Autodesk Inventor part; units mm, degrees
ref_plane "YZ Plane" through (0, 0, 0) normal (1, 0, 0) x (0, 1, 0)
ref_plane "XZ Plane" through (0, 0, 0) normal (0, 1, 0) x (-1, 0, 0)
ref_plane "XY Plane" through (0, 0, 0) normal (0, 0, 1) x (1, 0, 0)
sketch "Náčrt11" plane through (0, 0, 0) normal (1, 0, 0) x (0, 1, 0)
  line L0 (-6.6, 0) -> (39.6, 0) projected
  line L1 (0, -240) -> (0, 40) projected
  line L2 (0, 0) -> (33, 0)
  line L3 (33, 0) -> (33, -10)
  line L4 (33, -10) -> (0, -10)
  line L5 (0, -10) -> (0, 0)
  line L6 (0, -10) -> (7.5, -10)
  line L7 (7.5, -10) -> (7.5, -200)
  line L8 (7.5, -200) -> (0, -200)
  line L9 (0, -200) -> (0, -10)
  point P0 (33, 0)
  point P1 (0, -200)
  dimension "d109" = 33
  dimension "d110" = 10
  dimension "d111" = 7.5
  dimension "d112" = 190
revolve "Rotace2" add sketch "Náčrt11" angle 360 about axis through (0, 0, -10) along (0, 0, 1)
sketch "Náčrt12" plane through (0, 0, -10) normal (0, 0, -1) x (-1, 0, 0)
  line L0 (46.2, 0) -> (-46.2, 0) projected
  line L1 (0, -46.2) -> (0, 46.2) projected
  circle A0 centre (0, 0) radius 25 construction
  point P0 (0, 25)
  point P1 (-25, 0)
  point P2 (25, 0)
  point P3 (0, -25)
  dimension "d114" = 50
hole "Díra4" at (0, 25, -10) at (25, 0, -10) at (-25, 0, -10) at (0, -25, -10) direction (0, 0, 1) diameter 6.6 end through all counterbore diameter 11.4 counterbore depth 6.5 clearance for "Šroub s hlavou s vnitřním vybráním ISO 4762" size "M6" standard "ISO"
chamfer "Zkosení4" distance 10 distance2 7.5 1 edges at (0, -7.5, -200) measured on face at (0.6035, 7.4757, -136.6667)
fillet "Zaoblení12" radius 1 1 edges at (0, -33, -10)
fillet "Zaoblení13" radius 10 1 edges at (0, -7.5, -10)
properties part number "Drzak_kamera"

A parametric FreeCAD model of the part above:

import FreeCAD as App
import Part
import Sketcher
from FreeCAD import Vector


def edges_at(feature, points):
    """Names of the edges that pass closest to the given points."""
    edges = feature.Shape.Edges
    near = lambda p: min(range(len(edges)), key=lambda i: edges[i].distToShape(Part.Vertex(*p))[0])
    return sorted({f"Edge{near(p) + 1}" for p in points})


def add_polygon(sketch, points):
    """Adds a closed chain of lines whose ends are joined by coincident constraints."""
    first, n = sketch.GeometryCount, len(points)
    for a, b in zip(points, points[1:] + points[:1]):
        sketch.addGeometry(Part.LineSegment(App.Vector(*a, 0), App.Vector(*b, 0)), False)
    for i in range(n):
        sketch.addConstraint(Sketcher.Constraint("Coincident", first + i, 2, first + (i + 1) % n, 1))

doc = App.newDocument("Part")
body = doc.addObject("PartDesign::Body", "Body")

sketch1 = body.newObject("Sketcher::SketchObject", "Sketch")
sketch1.AttachmentSupport = (doc.getObject("YZ_Plane"), [""])
sketch1.MapMode = "FlatFace"
add_polygon(sketch1, [(33, 0), (0, 0), (0, -200), (8, -200), (8, -10), (33, -10)])
sketch1.addConstraint([
    Sketcher.Constraint("Horizontal", 0),
    Sketcher.Constraint("Vertical", 1),
    Sketcher.Constraint("Horizontal", 2),
    Sketcher.Constraint("Vertical", 3),
    Sketcher.Constraint("Horizontal", 4),
    Sketcher.Constraint("Vertical", 5),
    Sketcher.Constraint("Coincident", 0, 2, -1, 1),
    Sketcher.Constraint("DistanceX", 0, 2, 0, 1, 33.0),
    Sketcher.Constraint("DistanceY", 3, 1, 3, 2, 190.0),
    Sketcher.Constraint("DistanceY", 5, 1, 5, 2, 10.0),
    Sketcher.Constraint("DistanceX", 2, 1, 2, 2, 7.5),
])
revolution = body.newObject("PartDesign::Revolution", "Revolution")
revolution.Profile = sketch1
revolution.ReferenceAxis = (sketch1, ["V_Axis"])
revolution.Angle = 360

sketch2 = body.newObject("Sketcher::SketchObject", "Sketch001")
sketch2.AttachmentSupport = (doc.getObject("XY_Plane"), [""])
sketch2.MapMode = "FlatFace"
sketch2.AttachmentOffset = App.Placement(Vector(0, 0, -10), App.Rotation())
sketch2.addGeometry([
    Part.Circle(Vector(0, 25, 0), Vector(0, 0, 1), 3.3),
    Part.Circle(Vector(25, 0, 0), Vector(0, 0, 1), 3.3),
    Part.Circle(Vector(-25, 0, 0), Vector(0, 0, 1), 3.3),
    Part.Circle(Vector(0, -25, 0), Vector(0, 0, 1), 3.3),
], False)
sketch2.addConstraint([
    Sketcher.Constraint("Equal", 0, 1),
    Sketcher.Constraint("Equal", 1, 2),
    Sketcher.Constraint("Equal", 2, 3),
    Sketcher.Constraint("Symmetric", 1, 3, 2, 3, -1, 1),
    Sketcher.Constraint("Symmetric", 0, 3, 3, 3, -1, 1),
    Sketcher.Constraint("PointOnObject", 0, 3, -2),
    Sketcher.Constraint("PointOnObject", 1, 3, -1),
    Sketcher.Constraint("Diameter", 0, 6.6),
    Sketcher.Constraint("DistanceY", -1, 1, 0, 3, 25.0),
    Sketcher.Constraint("DistanceX", -1, 1, 1, 3, 25.0),
])
doc.recompute()
hole = body.newObject("PartDesign::Hole", "Hole")
hole.Profile = sketch2
hole.ThreadType = "None"
hole.Diameter = 6.6
hole.DepthType = "ThroughAll"
hole.HoleCutType = "Counterbore"
hole.HoleCutDiameter = 11.4
hole.HoleCutDepth = 6.5
hole.Reversed = True
doc.recompute()

chamfer = body.newObject("PartDesign::Chamfer", "Chamfer")
chamfer.Base = (hole, edges_at(hole, [(0, -7.5, -200)]))
chamfer.ChamferType = "Two distances"
chamfer.Size = 10
chamfer.Size2 = 7.5
doc.recompute()

fillet = body.newObject("PartDesign::Fillet", "Fillet")
fillet.Base = (chamfer, edges_at(chamfer, [(0, -33, -10)]))
fillet.Radius = 1
doc.recompute()

fillet2 = body.newObject("PartDesign::Fillet", "Fillet001")
fillet2.Base = (fillet, edges_at(fillet, [(0, -7.5, -10)]))
fillet2.Radius = 10

doc.recompute()
